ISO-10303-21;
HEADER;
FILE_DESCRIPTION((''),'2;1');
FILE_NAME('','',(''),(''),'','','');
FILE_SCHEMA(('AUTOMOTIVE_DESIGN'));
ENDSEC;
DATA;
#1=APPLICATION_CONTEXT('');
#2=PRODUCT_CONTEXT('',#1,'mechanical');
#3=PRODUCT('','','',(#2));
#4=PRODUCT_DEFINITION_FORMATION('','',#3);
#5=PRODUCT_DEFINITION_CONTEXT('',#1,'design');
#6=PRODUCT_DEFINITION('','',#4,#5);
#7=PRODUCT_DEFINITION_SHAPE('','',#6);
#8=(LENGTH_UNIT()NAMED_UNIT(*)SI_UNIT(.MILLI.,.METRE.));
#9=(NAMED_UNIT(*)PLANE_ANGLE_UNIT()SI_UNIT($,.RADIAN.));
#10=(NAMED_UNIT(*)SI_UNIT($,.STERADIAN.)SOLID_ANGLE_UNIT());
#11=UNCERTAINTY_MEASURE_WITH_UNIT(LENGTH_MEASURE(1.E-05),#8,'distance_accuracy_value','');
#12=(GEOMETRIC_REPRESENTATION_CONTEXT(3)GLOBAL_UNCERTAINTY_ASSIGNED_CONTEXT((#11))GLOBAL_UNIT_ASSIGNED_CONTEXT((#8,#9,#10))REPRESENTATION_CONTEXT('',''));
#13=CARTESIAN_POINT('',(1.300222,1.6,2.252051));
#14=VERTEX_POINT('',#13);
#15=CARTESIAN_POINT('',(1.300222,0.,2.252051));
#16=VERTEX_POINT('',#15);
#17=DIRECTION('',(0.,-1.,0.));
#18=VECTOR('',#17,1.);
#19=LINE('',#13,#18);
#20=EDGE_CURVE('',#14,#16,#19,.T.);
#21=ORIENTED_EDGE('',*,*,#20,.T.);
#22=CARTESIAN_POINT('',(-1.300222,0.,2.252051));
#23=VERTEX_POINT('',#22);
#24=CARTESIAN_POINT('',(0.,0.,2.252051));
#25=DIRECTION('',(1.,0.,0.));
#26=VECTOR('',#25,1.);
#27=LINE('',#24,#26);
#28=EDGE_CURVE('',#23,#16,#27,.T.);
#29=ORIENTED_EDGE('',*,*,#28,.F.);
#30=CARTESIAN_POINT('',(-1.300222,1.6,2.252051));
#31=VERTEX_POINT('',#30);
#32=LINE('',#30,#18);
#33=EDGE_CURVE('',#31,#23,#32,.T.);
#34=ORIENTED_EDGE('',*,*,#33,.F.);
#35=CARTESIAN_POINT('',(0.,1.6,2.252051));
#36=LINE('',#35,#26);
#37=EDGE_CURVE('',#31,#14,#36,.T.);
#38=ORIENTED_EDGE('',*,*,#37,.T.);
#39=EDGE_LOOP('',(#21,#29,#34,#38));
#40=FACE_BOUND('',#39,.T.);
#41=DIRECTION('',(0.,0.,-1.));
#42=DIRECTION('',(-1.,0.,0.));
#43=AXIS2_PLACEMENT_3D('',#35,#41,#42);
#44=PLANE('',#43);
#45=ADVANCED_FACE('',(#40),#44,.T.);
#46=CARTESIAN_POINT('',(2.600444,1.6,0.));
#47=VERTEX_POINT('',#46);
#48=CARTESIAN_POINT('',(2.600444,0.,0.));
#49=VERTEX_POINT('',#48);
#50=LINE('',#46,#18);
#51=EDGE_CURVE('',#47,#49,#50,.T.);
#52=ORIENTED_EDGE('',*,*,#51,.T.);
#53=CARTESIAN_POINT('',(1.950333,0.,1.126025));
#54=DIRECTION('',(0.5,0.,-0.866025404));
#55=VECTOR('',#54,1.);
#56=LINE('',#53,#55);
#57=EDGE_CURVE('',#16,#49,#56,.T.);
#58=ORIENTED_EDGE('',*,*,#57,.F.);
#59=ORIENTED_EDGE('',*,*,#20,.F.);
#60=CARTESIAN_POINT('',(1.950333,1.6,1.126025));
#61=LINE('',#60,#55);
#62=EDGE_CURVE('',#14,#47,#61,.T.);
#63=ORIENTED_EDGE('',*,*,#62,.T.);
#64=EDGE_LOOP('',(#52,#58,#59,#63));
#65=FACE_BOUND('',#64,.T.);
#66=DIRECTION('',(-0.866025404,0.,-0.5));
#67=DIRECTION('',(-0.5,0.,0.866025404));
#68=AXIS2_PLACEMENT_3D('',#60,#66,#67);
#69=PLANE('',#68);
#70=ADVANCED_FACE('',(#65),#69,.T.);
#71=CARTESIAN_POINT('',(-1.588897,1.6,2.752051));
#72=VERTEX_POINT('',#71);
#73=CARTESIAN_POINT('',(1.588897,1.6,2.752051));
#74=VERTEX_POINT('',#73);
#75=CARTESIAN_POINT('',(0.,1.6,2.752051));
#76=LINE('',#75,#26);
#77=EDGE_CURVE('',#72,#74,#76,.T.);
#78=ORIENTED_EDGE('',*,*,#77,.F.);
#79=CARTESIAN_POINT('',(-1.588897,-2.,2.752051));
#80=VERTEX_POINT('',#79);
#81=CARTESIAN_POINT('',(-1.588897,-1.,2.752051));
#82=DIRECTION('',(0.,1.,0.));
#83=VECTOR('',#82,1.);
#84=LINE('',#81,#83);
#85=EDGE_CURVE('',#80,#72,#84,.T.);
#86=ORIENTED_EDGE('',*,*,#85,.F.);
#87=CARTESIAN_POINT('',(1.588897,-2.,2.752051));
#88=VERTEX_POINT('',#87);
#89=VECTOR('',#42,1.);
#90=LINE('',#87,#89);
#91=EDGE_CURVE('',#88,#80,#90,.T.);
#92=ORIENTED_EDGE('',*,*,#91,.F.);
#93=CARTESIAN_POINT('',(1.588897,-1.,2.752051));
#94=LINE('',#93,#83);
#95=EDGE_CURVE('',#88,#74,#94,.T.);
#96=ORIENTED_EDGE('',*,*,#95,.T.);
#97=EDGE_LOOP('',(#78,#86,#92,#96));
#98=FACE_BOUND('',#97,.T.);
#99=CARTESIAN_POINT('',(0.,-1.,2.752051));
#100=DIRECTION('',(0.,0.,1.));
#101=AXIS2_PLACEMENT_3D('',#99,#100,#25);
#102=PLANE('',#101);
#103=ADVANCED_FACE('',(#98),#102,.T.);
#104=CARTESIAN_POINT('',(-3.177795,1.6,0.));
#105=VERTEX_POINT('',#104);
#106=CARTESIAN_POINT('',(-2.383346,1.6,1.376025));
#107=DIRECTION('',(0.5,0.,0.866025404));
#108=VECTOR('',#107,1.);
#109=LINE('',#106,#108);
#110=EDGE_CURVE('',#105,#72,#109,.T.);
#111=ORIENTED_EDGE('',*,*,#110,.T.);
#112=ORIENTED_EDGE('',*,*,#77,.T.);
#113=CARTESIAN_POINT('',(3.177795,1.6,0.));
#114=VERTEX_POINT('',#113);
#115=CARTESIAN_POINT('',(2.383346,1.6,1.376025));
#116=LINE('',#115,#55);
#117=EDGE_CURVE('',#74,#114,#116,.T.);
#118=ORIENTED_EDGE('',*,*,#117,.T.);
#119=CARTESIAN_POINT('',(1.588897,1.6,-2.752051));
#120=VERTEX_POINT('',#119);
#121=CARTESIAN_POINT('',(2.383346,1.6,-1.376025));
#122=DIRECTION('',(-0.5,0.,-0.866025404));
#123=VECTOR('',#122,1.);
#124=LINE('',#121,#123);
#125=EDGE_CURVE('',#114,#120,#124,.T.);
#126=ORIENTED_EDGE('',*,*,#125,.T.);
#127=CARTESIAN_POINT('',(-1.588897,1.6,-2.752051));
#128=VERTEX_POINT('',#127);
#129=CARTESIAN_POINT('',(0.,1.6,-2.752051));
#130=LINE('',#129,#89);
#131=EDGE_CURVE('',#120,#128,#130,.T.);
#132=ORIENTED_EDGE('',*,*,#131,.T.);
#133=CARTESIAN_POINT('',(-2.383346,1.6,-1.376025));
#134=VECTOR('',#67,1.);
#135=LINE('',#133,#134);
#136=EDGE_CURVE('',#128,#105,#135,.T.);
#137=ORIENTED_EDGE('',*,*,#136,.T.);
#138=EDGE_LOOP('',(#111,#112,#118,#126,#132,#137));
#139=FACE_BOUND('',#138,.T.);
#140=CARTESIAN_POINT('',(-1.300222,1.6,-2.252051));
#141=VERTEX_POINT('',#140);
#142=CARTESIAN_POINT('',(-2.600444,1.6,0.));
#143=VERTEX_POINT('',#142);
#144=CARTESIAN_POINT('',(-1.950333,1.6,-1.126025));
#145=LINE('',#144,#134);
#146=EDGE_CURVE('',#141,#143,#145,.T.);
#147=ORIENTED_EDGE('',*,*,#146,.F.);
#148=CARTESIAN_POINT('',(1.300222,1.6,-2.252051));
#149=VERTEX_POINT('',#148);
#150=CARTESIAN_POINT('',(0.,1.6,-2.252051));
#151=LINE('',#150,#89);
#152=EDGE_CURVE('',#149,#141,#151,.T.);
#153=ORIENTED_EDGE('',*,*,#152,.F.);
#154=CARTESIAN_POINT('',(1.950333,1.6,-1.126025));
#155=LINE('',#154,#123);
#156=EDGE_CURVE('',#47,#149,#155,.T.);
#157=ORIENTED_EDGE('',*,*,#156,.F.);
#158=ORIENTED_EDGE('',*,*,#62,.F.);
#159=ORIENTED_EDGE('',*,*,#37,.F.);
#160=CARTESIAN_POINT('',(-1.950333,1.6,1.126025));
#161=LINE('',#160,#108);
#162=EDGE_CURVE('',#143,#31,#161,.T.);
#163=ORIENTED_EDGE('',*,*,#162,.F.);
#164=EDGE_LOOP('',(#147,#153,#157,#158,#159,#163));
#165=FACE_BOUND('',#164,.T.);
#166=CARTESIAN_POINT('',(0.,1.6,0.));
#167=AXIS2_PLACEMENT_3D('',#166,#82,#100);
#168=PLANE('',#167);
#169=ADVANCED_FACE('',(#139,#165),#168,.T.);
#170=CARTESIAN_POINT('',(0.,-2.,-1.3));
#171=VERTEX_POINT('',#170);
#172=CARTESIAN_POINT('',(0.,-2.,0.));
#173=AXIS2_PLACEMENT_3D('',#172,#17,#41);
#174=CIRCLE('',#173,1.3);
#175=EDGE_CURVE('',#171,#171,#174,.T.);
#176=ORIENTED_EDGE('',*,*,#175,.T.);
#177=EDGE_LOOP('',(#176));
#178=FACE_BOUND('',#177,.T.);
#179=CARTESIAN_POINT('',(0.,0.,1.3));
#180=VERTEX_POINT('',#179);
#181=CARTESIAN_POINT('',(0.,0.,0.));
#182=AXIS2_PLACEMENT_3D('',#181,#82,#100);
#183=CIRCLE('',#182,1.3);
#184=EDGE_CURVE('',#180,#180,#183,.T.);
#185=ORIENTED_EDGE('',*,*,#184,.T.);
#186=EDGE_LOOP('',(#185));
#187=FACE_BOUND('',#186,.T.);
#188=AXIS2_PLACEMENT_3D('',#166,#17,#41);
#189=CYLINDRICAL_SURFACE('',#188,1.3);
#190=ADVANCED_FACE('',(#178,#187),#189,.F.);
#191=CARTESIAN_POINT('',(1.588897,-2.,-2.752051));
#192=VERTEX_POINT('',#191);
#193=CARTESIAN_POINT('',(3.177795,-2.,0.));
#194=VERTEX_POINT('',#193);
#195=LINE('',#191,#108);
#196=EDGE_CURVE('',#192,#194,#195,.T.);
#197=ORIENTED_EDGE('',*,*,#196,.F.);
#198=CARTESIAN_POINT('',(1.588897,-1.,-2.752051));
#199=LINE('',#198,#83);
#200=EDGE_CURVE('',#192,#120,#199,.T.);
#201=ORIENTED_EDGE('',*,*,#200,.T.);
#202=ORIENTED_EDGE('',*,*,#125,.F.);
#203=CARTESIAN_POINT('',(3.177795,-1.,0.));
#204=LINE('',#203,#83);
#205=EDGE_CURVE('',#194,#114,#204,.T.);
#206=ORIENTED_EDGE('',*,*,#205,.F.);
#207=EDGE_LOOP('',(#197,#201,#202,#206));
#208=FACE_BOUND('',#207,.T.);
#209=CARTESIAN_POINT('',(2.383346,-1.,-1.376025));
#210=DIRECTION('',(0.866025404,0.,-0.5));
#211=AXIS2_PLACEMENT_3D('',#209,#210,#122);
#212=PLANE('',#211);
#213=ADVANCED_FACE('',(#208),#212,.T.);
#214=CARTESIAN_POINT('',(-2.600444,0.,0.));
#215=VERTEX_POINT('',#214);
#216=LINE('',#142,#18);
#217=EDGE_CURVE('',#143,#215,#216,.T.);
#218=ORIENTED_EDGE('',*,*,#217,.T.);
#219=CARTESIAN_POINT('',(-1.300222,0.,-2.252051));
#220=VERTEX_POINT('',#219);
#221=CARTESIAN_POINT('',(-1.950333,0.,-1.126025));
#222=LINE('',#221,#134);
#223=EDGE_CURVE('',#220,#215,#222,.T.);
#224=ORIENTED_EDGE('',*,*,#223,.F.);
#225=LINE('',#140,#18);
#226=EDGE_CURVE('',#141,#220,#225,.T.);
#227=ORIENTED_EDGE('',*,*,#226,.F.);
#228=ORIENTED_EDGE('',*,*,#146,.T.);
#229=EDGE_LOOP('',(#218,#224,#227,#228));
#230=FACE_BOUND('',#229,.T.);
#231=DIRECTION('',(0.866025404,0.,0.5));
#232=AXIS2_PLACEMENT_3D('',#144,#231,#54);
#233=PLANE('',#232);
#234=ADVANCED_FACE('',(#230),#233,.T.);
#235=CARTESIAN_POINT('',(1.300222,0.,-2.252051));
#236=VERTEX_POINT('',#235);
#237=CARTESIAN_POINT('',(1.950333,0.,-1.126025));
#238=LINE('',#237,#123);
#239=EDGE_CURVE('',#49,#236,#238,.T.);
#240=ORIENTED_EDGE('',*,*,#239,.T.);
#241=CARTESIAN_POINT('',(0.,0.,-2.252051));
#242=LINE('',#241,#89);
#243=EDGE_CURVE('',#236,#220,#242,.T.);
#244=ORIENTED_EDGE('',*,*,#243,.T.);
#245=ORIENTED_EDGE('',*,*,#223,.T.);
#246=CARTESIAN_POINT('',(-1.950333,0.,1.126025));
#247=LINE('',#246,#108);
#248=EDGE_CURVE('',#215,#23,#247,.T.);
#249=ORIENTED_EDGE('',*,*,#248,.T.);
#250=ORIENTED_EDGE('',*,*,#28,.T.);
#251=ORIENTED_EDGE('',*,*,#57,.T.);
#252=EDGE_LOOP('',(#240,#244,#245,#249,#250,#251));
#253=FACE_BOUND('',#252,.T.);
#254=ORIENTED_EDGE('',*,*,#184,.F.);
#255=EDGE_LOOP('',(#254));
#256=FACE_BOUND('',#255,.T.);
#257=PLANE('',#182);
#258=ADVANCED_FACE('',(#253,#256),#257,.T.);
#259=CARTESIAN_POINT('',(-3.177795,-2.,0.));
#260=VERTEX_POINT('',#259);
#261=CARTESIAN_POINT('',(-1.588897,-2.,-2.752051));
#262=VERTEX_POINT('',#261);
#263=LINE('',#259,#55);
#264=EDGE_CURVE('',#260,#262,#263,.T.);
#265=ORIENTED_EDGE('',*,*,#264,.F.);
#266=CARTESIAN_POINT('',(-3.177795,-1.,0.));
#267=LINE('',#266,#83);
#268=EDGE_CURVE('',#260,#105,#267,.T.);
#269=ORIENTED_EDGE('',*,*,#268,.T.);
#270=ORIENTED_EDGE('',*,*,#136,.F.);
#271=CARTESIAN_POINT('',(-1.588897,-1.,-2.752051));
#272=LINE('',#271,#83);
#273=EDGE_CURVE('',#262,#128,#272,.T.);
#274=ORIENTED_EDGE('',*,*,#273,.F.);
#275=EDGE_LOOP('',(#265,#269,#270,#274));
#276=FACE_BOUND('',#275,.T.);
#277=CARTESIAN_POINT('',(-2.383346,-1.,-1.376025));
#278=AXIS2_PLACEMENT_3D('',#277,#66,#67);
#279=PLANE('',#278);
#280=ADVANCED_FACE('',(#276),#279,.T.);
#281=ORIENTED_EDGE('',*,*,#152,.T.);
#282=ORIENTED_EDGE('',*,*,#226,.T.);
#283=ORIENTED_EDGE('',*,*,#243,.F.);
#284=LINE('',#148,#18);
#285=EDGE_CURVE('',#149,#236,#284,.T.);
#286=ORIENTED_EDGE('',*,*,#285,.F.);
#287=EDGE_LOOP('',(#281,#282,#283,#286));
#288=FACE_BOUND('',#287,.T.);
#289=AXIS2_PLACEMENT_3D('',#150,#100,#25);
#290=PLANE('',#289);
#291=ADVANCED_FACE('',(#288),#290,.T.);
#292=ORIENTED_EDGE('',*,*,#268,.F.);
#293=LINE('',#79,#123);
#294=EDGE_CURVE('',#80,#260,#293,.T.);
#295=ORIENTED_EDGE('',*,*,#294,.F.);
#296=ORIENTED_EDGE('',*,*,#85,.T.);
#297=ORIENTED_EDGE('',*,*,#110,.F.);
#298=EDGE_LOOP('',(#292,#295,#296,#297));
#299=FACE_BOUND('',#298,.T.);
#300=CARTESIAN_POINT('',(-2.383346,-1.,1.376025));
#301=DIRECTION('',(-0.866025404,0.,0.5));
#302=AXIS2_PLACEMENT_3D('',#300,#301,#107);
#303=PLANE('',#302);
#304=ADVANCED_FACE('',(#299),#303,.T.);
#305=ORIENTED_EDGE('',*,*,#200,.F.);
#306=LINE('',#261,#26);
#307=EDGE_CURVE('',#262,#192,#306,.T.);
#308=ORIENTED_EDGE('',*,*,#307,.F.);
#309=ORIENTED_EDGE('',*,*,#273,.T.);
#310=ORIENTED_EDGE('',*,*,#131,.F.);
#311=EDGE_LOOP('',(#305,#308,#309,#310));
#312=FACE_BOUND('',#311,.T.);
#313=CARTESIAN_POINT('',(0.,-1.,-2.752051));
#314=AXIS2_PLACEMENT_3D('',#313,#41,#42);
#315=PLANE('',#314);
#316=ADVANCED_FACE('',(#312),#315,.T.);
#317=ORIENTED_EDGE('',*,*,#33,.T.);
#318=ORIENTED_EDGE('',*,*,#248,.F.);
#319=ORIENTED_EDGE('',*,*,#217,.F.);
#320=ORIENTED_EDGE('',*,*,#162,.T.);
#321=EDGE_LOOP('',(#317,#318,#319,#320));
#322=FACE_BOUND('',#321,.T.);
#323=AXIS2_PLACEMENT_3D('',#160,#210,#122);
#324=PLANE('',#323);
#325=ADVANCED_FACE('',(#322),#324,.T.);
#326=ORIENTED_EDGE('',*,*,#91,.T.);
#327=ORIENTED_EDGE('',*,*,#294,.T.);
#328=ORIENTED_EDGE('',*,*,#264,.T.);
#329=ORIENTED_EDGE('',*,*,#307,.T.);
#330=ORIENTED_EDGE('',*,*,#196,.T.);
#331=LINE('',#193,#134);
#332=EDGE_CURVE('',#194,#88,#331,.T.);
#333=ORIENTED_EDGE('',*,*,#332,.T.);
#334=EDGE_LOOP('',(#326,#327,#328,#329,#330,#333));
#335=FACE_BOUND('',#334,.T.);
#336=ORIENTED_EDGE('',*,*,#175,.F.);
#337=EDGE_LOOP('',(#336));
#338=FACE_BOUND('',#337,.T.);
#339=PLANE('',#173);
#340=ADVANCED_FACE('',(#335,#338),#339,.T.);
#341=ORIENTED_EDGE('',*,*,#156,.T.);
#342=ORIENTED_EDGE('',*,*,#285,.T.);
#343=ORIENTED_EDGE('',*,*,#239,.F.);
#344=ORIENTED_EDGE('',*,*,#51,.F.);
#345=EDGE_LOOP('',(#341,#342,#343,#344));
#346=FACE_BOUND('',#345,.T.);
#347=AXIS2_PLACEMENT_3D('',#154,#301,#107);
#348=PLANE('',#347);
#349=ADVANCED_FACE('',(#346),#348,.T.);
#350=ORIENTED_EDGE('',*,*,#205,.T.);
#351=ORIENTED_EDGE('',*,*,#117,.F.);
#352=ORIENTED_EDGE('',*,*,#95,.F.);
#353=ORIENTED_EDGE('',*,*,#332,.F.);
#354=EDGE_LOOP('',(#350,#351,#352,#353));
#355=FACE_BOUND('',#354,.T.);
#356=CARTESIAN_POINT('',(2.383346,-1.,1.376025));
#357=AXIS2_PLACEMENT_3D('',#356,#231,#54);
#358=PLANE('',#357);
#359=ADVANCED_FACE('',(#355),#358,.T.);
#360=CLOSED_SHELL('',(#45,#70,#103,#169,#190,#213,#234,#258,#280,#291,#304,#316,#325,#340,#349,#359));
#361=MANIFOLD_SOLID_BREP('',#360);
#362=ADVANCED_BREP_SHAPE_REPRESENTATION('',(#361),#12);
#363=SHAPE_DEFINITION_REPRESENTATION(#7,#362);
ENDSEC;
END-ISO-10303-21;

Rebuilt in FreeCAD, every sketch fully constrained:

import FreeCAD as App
import Part
import Sketcher
Q = App.Units.Quantity

doc = App.newDocument("Part")
body = doc.addObject("PartDesign::Body", "Body")

# Sketch on XZ plane
sketch1 = doc.addObject("Sketcher::SketchObject", "Sketch")
body.addObject(sketch1)
sketch1.AttachmentSupport = (doc.XZ_Plane, [""])
sketch1.MapMode = "FlatFace"
sketch1.addGeometry([
    Part.LineSegment(App.Vector(-1.588897, 2.752051, 0), App.Vector(1.588897, 2.752051, 0)),  # 0
    Part.LineSegment(App.Vector(1.588897, 2.752051, 0), App.Vector(3.177795, 0, 0)),  # 1
    Part.LineSegment(App.Vector(3.177795, 0, 0), App.Vector(1.588897, -2.752051, 0)),  # 2
    Part.LineSegment(App.Vector(1.588897, -2.752051, 0), App.Vector(-1.588897, -2.752051, 0)),  # 3
    Part.LineSegment(App.Vector(-1.588897, -2.752051, 0), App.Vector(-3.177795, 0, 0)),  # 4
    Part.LineSegment(App.Vector(-3.177795, 0, 0), App.Vector(-1.588897, 2.752051, 0)),  # 5
], False)
sketch1.addConstraint([
    Sketcher.Constraint("Coincident", 0, 2, 1, 1),
    Sketcher.Constraint("Coincident", 1, 2, 2, 1),
    Sketcher.Constraint("Coincident", 2, 2, 3, 1),
    Sketcher.Constraint("Coincident", 3, 2, 4, 1),
    Sketcher.Constraint("Coincident", 4, 2, 5, 1),
    Sketcher.Constraint("Coincident", 5, 2, 0, 1),
    Sketcher.Constraint("Horizontal", 0),
    Sketcher.Constraint("Horizontal", 3),
    Sketcher.Constraint("Symmetric", 0, 2, 3, 2, -1, 1),
    Sketcher.Constraint("Symmetric", 1, 2, 4, 2, -1, 1),
    Sketcher.Constraint("PointOnObject", 1, 2, -1),
    Sketcher.Constraint("Parallel", 2, 5),
    Sketcher.Constraint("Vertical", 0, 2, 2, 2),
    Sketcher.Constraint("Angle", 1, Q("-60 deg")),
    Sketcher.Constraint("DistanceY", 2, 2, 0, 2, 5.504102),
    Sketcher.Constraint("DistanceX", 0, 1, 0, 2, 3.177795),
])
pad1 = doc.addObject("PartDesign::Pad", "Pad")
body.addObject(pad1)
pad1.Profile = sketch1
pad1.Length = 1

# Sketch on XZ plane
sketch2 = doc.addObject("Sketcher::SketchObject", "Sketch001")
body.addObject(sketch2)
sketch2.AttachmentSupport = (doc.XZ_Plane, [""])
sketch2.MapMode = "FlatFace"
sketch2.addGeometry([
    Part.LineSegment(App.Vector(-1.588897, 2.752051, 0), App.Vector(1.588897, 2.752051, 0)),  # 0
    Part.LineSegment(App.Vector(1.588897, 2.752051, 0), App.Vector(3.177795, 0, 0)),  # 1
    Part.LineSegment(App.Vector(3.177795, 0, 0), App.Vector(1.588897, -2.752051, 0)),  # 2
    Part.LineSegment(App.Vector(1.588897, -2.752051, 0), App.Vector(-1.588897, -2.752051, 0)),  # 3
    Part.LineSegment(App.Vector(-1.588897, -2.752051, 0), App.Vector(-3.177795, 0, 0)),  # 4
    Part.LineSegment(App.Vector(-3.177795, 0, 0), App.Vector(-1.588897, 2.752051, 0)),  # 5
    Part.LineSegment(App.Vector(1.300222, 2.252051, 0), App.Vector(-1.300222, 2.252051, 0)),  # 6
    Part.LineSegment(App.Vector(-1.300222, 2.252051, 0), App.Vector(-2.600444, 0, 0)),  # 7
    Part.LineSegment(App.Vector(-2.600444, 0, 0), App.Vector(-1.300222, -2.252051, 0)),  # 8
    Part.LineSegment(App.Vector(-1.300222, -2.252051, 0), App.Vector(1.300222, -2.252051, 0)),  # 9
    Part.LineSegment(App.Vector(1.300222, -2.252051, 0), App.Vector(2.600444, 0, 0)),  # 10
    Part.LineSegment(App.Vector(2.600444, 0, 0), App.Vector(1.300222, 2.252051, 0)),  # 11
], False)
sketch2.addConstraint([
    Sketcher.Constraint("Coincident", 0, 2, 1, 1),
    Sketcher.Constraint("Coincident", 1, 2, 2, 1),
    Sketcher.Constraint("Coincident", 2, 2, 3, 1),
    Sketcher.Constraint("Coincident", 3, 2, 4, 1),
    Sketcher.Constraint("Coincident", 4, 2, 5, 1),
    Sketcher.Constraint("Coincident", 5, 2, 0, 1),
    Sketcher.Constraint("Coincident", 6, 2, 7, 1),
    Sketcher.Constraint("Coincident", 7, 2, 8, 1),
    Sketcher.Constraint("Coincident", 8, 2, 9, 1),
    Sketcher.Constraint("Coincident", 9, 2, 10, 1),
    Sketcher.Constraint("Coincident", 10, 2, 11, 1),
    Sketcher.Constraint("Coincident", 11, 2, 6, 1),
    Sketcher.Constraint("Horizontal", 0),
    Sketcher.Constraint("Horizontal", 3),
    Sketcher.Constraint("Horizontal", 6),
    Sketcher.Constraint("Horizontal", 9),
    Sketcher.Constraint("Symmetric", 0, 2, 3, 2, -1, 1),
    Sketcher.Constraint("Symmetric", 1, 2, 4, 2, -1, 1),
    Sketcher.Constraint("Symmetric", 6, 2, 9, 2, -1, 1),
    Sketcher.Constraint("Symmetric", 7, 2, 10, 2, -1, 1),
    Sketcher.Constraint("PointOnObject", 1, 2, -1),
    Sketcher.Constraint("PointOnObject", 7, 2, -1),
    Sketcher.Constraint("Parallel", 2, 5),
    Sketcher.Constraint("Parallel", 5, 7),
    Sketcher.Constraint("Parallel", 4, 8),
    Sketcher.Constraint("Parallel", 8, 11),
    Sketcher.Constraint("Vertical", 0, 2, 2, 2),
    Sketcher.Constraint("Angle", 1, Q("-60 deg")),
    Sketcher.Constraint("DistanceY", 6, 2, 5, 2, 0.5),
    Sketcher.Constraint("DistanceY", 2, 2, 0, 2, 5.504102),
    Sketcher.Constraint("DistanceX", 0, 1, 0, 2, 3.177795),
    Sketcher.Constraint("DistanceX", 6, 2, 6, 1, 2.600444),
])
pad2 = doc.addObject("PartDesign::Pad", "Pad001")
body.addObject(pad2)
pad2.Profile = sketch2
pad2.Length = 1.6
pad2.Reversed = True

# Sketch on XZ plane
sketch3 = doc.addObject("Sketcher::SketchObject", "Sketch002")
body.addObject(sketch3)
sketch3.AttachmentSupport = (doc.XZ_Plane, [""])
sketch3.MapMode = "FlatFace"
sketch3.AttachmentOffset = App.Placement(App.Vector(0, 0, 1), App.Rotation())
sketch3.addGeometry(Part.Circle(App.Vector(0, 0, 0), App.Vector(0, 0, 1), 1.3), False)
sketch3.addConstraint([
    Sketcher.Constraint("Coincident", 0, 3, -1, 1),
    Sketcher.Constraint("Diameter", 0, 2.6),
])
pocket1 = doc.addObject("PartDesign::Pocket", "Pocket")
body.addObject(pocket1)
pocket1.Profile = sketch3
pocket1.Length = 2.6

# Sketch on XZ plane
sketch4 = doc.addObject("Sketcher::SketchObject", "Sketch003")
body.addObject(sketch4)
sketch4.AttachmentSupport = (doc.XZ_Plane, [""])
sketch4.MapMode = "FlatFace"
sketch4.AttachmentOffset = App.Placement(App.Vector(0, 0, 1), App.Rotation())
sketch4.addGeometry([
    Part.LineSegment(App.Vector(-1.588897, -2.752051, 0), App.Vector(1.588897, -2.752051, 0)),  # 0
    Part.LineSegment(App.Vector(1.588897, -2.752051, 0), App.Vector(3.177795, 0, 0)),  # 1
    Part.LineSegment(App.Vector(3.177795, 0, 0), App.Vector(1.588897, 2.752051, 0)),  # 2
    Part.LineSegment(App.Vector(1.588897, 2.752051, 0), App.Vector(-1.588897, 2.752051, 0)),  # 3
    Part.LineSegment(App.Vector(-1.588897, 2.752051, 0), App.Vector(-3.177795, 0, 0)),  # 4
    Part.LineSegment(App.Vector(-3.177795, 0, 0), App.Vector(-1.588897, -2.752051, 0)),  # 5
    Part.Circle(App.Vector(0, 0, 0), App.Vector(0, 0, 1), 1.3),  # 6
], False)
sketch4.addConstraint([
    Sketcher.Constraint("Coincident", 0, 2, 1, 1),
    Sketcher.Constraint("Coincident", 1, 2, 2, 1),
    Sketcher.Constraint("Coincident", 2, 2, 3, 1),
    Sketcher.Constraint("Coincident", 3, 2, 4, 1),
    Sketcher.Constraint("Coincident", 4, 2, 5, 1),
    Sketcher.Constraint("Coincident", 5, 2, 0, 1),
    Sketcher.Constraint("Horizontal", 0),
    Sketcher.Constraint("Horizontal", 3),
    Sketcher.Constraint("Coincident", 6, 3, -1, 1),
    Sketcher.Constraint("Symmetric", 0, 2, 3, 2, -1, 1),
    Sketcher.Constraint("Symmetric", 1, 2, 4, 2, -1, 1),
    Sketcher.Constraint("PointOnObject", 1, 2, -1),
    Sketcher.Constraint("Parallel", 2, 5),
    Sketcher.Constraint("Vertical", 0, 2, 2, 2),
    Sketcher.Constraint("Diameter", 6, 2.6),
    Sketcher.Constraint("Angle", 1, Q("60 deg")),
    Sketcher.Constraint("DistanceY", 0, 2, 2, 2, 5.504102),
    Sketcher.Constraint("DistanceX", 0, 1, 0, 2, 3.177795),
])
pad3 = doc.addObject("PartDesign::Pad", "Pad002")
body.addObject(pad3)
pad3.Profile = sketch4
pad3.Length = 1

doc.recompute()
